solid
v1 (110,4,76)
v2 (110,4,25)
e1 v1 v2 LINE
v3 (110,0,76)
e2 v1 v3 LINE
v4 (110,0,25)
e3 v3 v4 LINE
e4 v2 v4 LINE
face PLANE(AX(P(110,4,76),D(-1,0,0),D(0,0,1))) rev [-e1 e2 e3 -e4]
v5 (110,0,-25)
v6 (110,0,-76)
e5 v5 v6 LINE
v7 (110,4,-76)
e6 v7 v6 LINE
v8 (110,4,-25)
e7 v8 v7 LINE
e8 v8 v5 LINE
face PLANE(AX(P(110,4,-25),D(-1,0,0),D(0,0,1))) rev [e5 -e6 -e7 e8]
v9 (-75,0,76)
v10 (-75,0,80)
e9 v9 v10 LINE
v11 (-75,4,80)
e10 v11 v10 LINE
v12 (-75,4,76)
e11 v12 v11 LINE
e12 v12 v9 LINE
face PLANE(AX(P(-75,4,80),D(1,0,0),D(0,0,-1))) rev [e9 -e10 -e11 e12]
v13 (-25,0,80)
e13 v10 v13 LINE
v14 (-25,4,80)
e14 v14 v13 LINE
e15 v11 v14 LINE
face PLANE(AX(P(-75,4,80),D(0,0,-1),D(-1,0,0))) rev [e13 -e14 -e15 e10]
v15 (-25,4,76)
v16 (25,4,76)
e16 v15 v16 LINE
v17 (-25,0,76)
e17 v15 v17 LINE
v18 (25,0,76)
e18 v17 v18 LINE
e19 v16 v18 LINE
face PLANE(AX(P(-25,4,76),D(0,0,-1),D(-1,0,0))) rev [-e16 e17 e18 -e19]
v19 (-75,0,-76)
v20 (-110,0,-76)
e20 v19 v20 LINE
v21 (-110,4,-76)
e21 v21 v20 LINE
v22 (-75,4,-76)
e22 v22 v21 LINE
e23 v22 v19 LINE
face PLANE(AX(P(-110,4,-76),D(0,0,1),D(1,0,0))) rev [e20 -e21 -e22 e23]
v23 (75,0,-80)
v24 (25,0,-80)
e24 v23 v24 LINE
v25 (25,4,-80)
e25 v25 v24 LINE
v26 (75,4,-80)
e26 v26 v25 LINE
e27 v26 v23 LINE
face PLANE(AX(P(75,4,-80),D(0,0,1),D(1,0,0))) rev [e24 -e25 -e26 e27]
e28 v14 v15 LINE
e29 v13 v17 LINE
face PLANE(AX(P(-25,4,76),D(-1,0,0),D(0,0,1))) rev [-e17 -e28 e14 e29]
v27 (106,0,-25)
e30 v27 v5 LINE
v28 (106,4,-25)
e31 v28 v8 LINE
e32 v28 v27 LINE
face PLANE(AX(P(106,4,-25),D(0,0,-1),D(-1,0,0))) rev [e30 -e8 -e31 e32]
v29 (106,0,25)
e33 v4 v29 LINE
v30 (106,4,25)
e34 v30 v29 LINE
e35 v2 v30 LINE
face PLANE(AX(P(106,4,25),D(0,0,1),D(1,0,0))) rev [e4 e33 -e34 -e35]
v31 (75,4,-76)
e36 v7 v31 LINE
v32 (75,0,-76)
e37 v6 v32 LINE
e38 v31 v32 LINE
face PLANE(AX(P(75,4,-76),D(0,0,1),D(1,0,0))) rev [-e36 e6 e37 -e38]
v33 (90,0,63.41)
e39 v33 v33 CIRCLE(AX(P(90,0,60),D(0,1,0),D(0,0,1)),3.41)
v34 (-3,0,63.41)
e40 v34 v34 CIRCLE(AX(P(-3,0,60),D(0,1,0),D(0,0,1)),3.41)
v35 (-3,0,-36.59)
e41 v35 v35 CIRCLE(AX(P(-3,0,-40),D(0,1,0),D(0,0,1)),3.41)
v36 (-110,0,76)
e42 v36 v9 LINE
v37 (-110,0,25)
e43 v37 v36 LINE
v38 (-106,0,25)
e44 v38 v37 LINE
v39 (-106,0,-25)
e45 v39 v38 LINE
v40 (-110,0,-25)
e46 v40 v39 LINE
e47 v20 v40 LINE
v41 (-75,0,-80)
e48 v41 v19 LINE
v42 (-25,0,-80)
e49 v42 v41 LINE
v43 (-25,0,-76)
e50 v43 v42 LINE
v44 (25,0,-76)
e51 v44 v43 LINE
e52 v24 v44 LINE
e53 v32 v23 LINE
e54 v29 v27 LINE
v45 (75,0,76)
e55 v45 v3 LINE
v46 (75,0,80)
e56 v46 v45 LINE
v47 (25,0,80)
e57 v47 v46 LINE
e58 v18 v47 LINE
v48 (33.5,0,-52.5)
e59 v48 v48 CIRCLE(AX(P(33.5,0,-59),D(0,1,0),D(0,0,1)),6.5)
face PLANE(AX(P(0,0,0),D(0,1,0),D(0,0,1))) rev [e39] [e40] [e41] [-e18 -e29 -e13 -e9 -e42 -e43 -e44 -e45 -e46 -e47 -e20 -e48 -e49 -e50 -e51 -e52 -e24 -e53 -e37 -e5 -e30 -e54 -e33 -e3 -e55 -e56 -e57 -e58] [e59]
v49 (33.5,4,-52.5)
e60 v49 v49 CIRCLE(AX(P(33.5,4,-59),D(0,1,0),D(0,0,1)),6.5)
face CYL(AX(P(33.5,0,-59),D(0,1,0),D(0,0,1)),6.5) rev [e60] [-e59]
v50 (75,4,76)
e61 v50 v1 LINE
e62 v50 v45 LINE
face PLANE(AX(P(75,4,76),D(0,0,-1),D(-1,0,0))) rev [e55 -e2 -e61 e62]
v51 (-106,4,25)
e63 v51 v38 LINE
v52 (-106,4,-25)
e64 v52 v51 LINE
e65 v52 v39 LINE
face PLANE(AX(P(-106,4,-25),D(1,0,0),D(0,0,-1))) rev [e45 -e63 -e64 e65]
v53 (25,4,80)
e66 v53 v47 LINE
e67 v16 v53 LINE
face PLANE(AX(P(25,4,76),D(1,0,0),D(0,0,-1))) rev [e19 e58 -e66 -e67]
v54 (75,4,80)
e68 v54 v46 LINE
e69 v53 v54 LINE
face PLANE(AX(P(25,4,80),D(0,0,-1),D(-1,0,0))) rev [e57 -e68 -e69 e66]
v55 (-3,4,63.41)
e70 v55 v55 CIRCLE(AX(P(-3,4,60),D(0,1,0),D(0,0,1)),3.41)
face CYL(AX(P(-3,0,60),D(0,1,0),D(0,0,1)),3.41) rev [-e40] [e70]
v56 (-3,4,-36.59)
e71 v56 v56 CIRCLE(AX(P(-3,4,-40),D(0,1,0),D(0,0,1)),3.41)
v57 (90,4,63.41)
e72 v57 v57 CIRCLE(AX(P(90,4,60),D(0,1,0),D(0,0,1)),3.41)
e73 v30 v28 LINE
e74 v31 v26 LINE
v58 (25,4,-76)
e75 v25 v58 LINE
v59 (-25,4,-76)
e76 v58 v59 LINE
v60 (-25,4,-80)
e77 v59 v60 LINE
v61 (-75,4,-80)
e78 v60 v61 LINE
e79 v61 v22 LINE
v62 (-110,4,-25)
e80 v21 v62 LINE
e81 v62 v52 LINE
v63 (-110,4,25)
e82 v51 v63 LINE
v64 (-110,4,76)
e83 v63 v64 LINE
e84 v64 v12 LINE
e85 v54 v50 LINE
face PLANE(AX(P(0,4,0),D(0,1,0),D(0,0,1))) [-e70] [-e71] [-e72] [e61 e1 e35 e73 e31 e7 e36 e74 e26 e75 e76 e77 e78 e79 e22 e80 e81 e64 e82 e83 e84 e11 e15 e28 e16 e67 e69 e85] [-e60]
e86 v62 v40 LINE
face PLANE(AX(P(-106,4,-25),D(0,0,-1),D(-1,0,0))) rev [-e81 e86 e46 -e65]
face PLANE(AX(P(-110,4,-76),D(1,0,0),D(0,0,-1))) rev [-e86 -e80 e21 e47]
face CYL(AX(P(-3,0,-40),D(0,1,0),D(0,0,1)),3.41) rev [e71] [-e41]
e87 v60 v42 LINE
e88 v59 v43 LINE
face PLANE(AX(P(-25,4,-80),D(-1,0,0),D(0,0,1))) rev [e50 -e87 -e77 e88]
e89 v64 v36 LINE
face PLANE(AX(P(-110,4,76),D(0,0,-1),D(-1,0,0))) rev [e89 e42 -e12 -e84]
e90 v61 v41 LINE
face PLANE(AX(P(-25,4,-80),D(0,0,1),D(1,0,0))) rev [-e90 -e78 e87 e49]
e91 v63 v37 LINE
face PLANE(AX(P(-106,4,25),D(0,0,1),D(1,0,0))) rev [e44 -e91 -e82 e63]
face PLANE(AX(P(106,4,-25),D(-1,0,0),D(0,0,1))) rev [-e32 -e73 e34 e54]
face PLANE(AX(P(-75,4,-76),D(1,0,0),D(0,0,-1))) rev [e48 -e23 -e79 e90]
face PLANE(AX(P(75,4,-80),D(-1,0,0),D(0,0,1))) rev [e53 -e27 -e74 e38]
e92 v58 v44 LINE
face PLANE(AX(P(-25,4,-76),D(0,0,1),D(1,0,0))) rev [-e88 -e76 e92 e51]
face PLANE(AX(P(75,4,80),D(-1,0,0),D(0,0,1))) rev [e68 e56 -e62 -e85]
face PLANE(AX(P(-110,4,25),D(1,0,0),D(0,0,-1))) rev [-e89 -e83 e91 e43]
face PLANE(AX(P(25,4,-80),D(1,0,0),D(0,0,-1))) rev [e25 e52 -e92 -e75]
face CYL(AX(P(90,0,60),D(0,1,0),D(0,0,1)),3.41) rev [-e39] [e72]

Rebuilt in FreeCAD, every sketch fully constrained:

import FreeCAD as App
import Part
import Sketcher
Q = App.Units.Quantity

doc = App.newDocument("Part")
params = doc.addObject("Spreadsheet::Sheet", "Params")
for row, (alias, value) in enumerate([
    ("sketch1_width", "4 mm"),
    ("sketch1_width2", "35 mm"),
    ("sketch1_width3", "50 mm"),
    ("sketch1_height", "51 mm"),
    ("pad1_length", "4 mm"),
    ("sketch2_diameter", "6.82 mm"),
    ("sketch3_diameter", "13 mm"),
], start=1):
    params.set(f"A{row}", alias)
    params.set(f"B{row}", "=" + value)
    params.setAlias(f"B{row}", alias)

body = doc.addObject("PartDesign::Body", "Body")

# Sketch on XZ plane
sketch1 = doc.addObject("Sketcher::SketchObject", "Sketch")
body.addObject(sketch1)
sketch1.AttachmentSupport = (doc.XZ_Plane, [""])
sketch1.MapMode = "FlatFace"
sketch1.addGeometry([
    Part.LineSegment(App.Vector(-110, -76, 0), App.Vector(-110, -25, 0)),  # 0
    Part.LineSegment(App.Vector(-110, -25, 0), App.Vector(-106, -25, 0)),  # 1
    Part.LineSegment(App.Vector(-106, -25, 0), App.Vector(-106, 25, 0)),  # 2
    Part.LineSegment(App.Vector(-106, 25, 0), App.Vector(-110, 25, 0)),  # 3
    Part.LineSegment(App.Vector(-110, 25, 0), App.Vector(-110, 76, 0)),  # 4
    Part.LineSegment(App.Vector(-110, 76, 0), App.Vector(-75, 76, 0)),  # 5
    Part.LineSegment(App.Vector(-75, 76, 0), App.Vector(-75, 80, 0)),  # 6
    Part.LineSegment(App.Vector(-75, 80, 0), App.Vector(-25, 80, 0)),  # 7
    Part.LineSegment(App.Vector(-25, 80, 0), App.Vector(-25, 76, 0)),  # 8
    Part.LineSegment(App.Vector(-25, 76, 0), App.Vector(25, 76, 0)),  # 9
    Part.LineSegment(App.Vector(25, 76, 0), App.Vector(25, 80, 0)),  # 10
    Part.LineSegment(App.Vector(25, 80, 0), App.Vector(75, 80, 0)),  # 11
    Part.LineSegment(App.Vector(75, 80, 0), App.Vector(75, 76, 0)),  # 12
    Part.LineSegment(App.Vector(75, 76, 0), App.Vector(110, 76, 0)),  # 13
    Part.LineSegment(App.Vector(110, 76, 0), App.Vector(110, 25, 0)),  # 14
    Part.LineSegment(App.Vector(110, 25, 0), App.Vector(106, 25, 0)),  # 15
    Part.LineSegment(App.Vector(106, 25, 0), App.Vector(106, -25, 0)),  # 16
    Part.LineSegment(App.Vector(106, -25, 0), App.Vector(110, -25, 0)),  # 17
    Part.LineSegment(App.Vector(110, -25, 0), App.Vector(110, -76, 0)),  # 18
    Part.LineSegment(App.Vector(110, -76, 0), App.Vector(75, -76, 0)),  # 19
    Part.LineSegment(App.Vector(75, -76, 0), App.Vector(75, -80, 0)),  # 20
    Part.LineSegment(App.Vector(75, -80, 0), App.Vector(25, -80, 0)),  # 21
    Part.LineSegment(App.Vector(25, -80, 0), App.Vector(25, -76, 0)),  # 22
    Part.LineSegment(App.Vector(25, -76, 0), App.Vector(-25, -76, 0)),  # 23
    Part.LineSegment(App.Vector(-25, -76, 0), App.Vector(-25, -80, 0)),  # 24
    Part.LineSegment(App.Vector(-25, -80, 0), App.Vector(-75, -80, 0)),  # 25
    Part.LineSegment(App.Vector(-75, -80, 0), App.Vector(-75, -76, 0)),  # 26
    Part.LineSegment(App.Vector(-75, -76, 0), App.Vector(-110, -76, 0)),  # 27
], False)
sketch1.addConstraint([
    Sketcher.Constraint("Coincident", 0, 2, 1, 1),
    Sketcher.Constraint("Coincident", 1, 2, 2, 1),
    Sketcher.Constraint("Coincident", 2, 2, 3, 1),
    Sketcher.Constraint("Coincident", 3, 2, 4, 1),
    Sketcher.Constraint("Coincident", 4, 2, 5, 1),
    Sketcher.Constraint("Coincident", 5, 2, 6, 1),
    Sketcher.Constraint("Coincident", 6, 2, 7, 1),
    Sketcher.Constraint("Coincident", 7, 2, 8, 1),
    Sketcher.Constraint("Coincident", 8, 2, 9, 1),
    Sketcher.Constraint("Coincident", 9, 2, 10, 1),
    Sketcher.Constraint("Coincident", 10, 2, 11, 1),
    Sketcher.Constraint("Coincident", 11, 2, 12, 1),
    Sketcher.Constraint("Coincident", 12, 2, 13, 1),
    Sketcher.Constraint("Coincident", 13, 2, 14, 1),
    Sketcher.Constraint("Coincident", 14, 2, 15, 1),
    Sketcher.Constraint("Coincident", 15, 2, 16, 1),
    Sketcher.Constraint("Coincident", 16, 2, 17, 1),
    Sketcher.Constraint("Coincident", 17, 2, 18, 1),
    Sketcher.Constraint("Coincident", 18, 2, 19, 1),
    Sketcher.Constraint("Coincident", 19, 2, 20, 1),
    Sketcher.Constraint("Coincident", 20, 2, 21, 1),
    Sketcher.Constraint("Coincident", 21, 2, 22, 1),
    Sketcher.Constraint("Coincident", 22, 2, 23, 1),
    Sketcher.Constraint("Coincident", 23, 2, 24, 1),
    Sketcher.Constraint("Coincident", 24, 2, 25, 1),
    Sketcher.Constraint("Coincident", 25, 2, 26, 1),
    Sketcher.Constraint("Coincident", 26, 2, 27, 1),
    Sketcher.Constraint("Coincident", 27, 2, 0, 1),
    Sketcher.Constraint("Vertical", 0),
    Sketcher.Constraint("Horizontal", 1),
    Sketcher.Constraint("Vertical", 2),
    Sketcher.Constraint("Horizontal", 3),
    Sketcher.Constraint("Vertical", 4),
    Sketcher.Constraint("Horizontal", 5),
    Sketcher.Constraint("Vertical", 6),
    Sketcher.Constraint("Horizontal", 7),
    Sketcher.Constraint("Vertical", 8),
    Sketcher.Constraint("Horizontal", 9),
    Sketcher.Constraint("Vertical", 10),
    Sketcher.Constraint("Horizontal", 11),
    Sketcher.Constraint("Vertical", 12),
    Sketcher.Constraint("Horizontal", 13),
    Sketcher.Constraint("Vertical", 14),
    Sketcher.Constraint("Horizontal", 15),
    Sketcher.Constraint("Vertical", 16),
    Sketcher.Constraint("Horizontal", 17),
    Sketcher.Constraint("Vertical", 18),
    Sketcher.Constraint("Horizontal", 19),
    Sketcher.Constraint("Vertical", 20),
    Sketcher.Constraint("Horizontal", 21),
    Sketcher.Constraint("Vertical", 22),
    Sketcher.Constraint("Horizontal", 23),
    Sketcher.Constraint("Vertical", 24),
    Sketcher.Constraint("Horizontal", 25),
    Sketcher.Constraint("Vertical", 26),
    Sketcher.Constraint("Horizontal", 27),
    Sketcher.Constraint("Symmetric", 0, 2, 14, 2, -1, 1),
    Sketcher.Constraint("Symmetric", 2, 2, 16, 2, -1, 1),
    Sketcher.Constraint("Symmetric", 4, 2, 18, 2, -1, 1),
    Sketcher.Constraint("Symmetric", 6, 2, 20, 2, -1, 1),
    Sketcher.Constraint("Symmetric", 8, 2, 22, 2, -1, 1),
    Sketcher.Constraint("Symmetric", 10, 2, 24, 2, -1, 1),
    Sketcher.Constraint("Symmetric", 12, 2, 26, 2, -1, 1),
    Sketcher.Constraint("Symmetric", 7, 2, 10, 2, -2),
    Sketcher.Constraint("Symmetric", 5, 2, 12, 2, -2),
    Sketcher.Constraint("Symmetric", 3, 2, 14, 2, -2),
    Sketcher.Constraint("Horizontal", 5, 2, 8, 2),
    Sketcher.Constraint("Equal", 7, 9),
    Sketcher.Constraint("Equal", 25, 2),
    Sketcher.Constraint("Equal", 17, 6),
    Sketcher.Constraint("DistanceX", 1, 1, 1, 2, Q("4 mm")),
    Sketcher.Constraint("DistanceX", 5, 1, 5, 2, Q("35 mm")),
    Sketcher.Constraint("DistanceX", 7, 1, 7, 2, Q("50 mm")),
    Sketcher.Constraint("DistanceY", 0, 1, 0, 2, Q("51 mm")),
])
sketch1.setExpression("Constraints[70]", "Params.sketch1_width")
sketch1.setExpression("Constraints[71]", "Params.sketch1_width2")
sketch1.setExpression("Constraints[72]", "Params.sketch1_width3")
sketch1.setExpression("Constraints[73]", "Params.sketch1_height")
pad1 = doc.addObject("PartDesign::Pad", "Pad")
body.addObject(pad1)
pad1.Profile = sketch1
pad1.setExpression("Length", "Params.pad1_length")
pad1.Reversed = True

# Sketch on XZ plane
sketch2 = doc.addObject("Sketcher::SketchObject", "Sketch001")
body.addObject(sketch2)
sketch2.AttachmentSupport = (doc.XZ_Plane, [""])
sketch2.MapMode = "FlatFace"
sketch2.AttachmentOffset = App.Placement(App.Vector(0, 0, -4), App.Rotation())
sketch2.addGeometry([
    Part.Circle(App.Vector(90, 60, 0), App.Vector(0, 0, 1), 3.41),
    Part.Circle(App.Vector(-3, 60, 0), App.Vector(0, 0, 1), 3.41),
    Part.Circle(App.Vector(-3, -40, 0), App.Vector(0, 0, 1), 3.41),
], False)
sketch2.addConstraint([
    Sketcher.Constraint("Equal", 0, 1),
    Sketcher.Constraint("Equal", 1, 2),
    Sketcher.Constraint("Horizontal", 0, 3, 1, 3),
    Sketcher.Constraint("Vertical", 1, 3, 2, 3),
    Sketcher.Constraint("Diameter", 0, Q("6.82 mm")),
    Sketcher.Constraint("DistanceX", -1, 1, 0, 3, Q("90 mm")),
    Sketcher.Constraint("DistanceY", -1, 1, 0, 3, Q("60 mm")),
    Sketcher.Constraint("DistanceX", 1, 3, -1, 1, Q("3 mm")),
    Sketcher.Constraint("DistanceY", 2, 3, -1, 1, Q("40 mm")),
])
sketch2.setExpression("Constraints[4]", "Params.sketch2_diameter")
pocket1 = doc.addObject("PartDesign::Pocket", "Pocket")
body.addObject(pocket1)
pocket1.Profile = sketch2
pocket1.Type = "ThroughAll"
pocket1.Reversed = True

# Sketch on XZ plane
sketch3 = doc.addObject("Sketcher::SketchObject", "Sketch002")
body.addObject(sketch3)
sketch3.AttachmentSupport = (doc.XZ_Plane, [""])
sketch3.MapMode = "FlatFace"
sketch3.AttachmentOffset = App.Placement(App.Vector(0, 0, -4), App.Rotation())
sketch3.addGeometry(Part.Circle(App.Vector(33.5, -59, 0), App.Vector(0, 0, 1), 6.5), False)
sketch3.addConstraint([
    Sketcher.Constraint("Diameter", 0, Q("13 mm")),
    Sketcher.Constraint("DistanceY", 0, 3, -1, 1, Q("59 mm")),
    Sketcher.Constraint("DistanceX", -1, 1, 0, 3, Q("33.5 mm")),
])
sketch3.setExpression("Constraints[0]", "Params.sketch3_diameter")
pocket2 = doc.addObject("PartDesign::Pocket", "Pocket001")
body.addObject(pocket2)
pocket2.Profile = sketch3
pocket2.Type = "ThroughAll"
pocket2.Reversed = True

doc.recompute()
